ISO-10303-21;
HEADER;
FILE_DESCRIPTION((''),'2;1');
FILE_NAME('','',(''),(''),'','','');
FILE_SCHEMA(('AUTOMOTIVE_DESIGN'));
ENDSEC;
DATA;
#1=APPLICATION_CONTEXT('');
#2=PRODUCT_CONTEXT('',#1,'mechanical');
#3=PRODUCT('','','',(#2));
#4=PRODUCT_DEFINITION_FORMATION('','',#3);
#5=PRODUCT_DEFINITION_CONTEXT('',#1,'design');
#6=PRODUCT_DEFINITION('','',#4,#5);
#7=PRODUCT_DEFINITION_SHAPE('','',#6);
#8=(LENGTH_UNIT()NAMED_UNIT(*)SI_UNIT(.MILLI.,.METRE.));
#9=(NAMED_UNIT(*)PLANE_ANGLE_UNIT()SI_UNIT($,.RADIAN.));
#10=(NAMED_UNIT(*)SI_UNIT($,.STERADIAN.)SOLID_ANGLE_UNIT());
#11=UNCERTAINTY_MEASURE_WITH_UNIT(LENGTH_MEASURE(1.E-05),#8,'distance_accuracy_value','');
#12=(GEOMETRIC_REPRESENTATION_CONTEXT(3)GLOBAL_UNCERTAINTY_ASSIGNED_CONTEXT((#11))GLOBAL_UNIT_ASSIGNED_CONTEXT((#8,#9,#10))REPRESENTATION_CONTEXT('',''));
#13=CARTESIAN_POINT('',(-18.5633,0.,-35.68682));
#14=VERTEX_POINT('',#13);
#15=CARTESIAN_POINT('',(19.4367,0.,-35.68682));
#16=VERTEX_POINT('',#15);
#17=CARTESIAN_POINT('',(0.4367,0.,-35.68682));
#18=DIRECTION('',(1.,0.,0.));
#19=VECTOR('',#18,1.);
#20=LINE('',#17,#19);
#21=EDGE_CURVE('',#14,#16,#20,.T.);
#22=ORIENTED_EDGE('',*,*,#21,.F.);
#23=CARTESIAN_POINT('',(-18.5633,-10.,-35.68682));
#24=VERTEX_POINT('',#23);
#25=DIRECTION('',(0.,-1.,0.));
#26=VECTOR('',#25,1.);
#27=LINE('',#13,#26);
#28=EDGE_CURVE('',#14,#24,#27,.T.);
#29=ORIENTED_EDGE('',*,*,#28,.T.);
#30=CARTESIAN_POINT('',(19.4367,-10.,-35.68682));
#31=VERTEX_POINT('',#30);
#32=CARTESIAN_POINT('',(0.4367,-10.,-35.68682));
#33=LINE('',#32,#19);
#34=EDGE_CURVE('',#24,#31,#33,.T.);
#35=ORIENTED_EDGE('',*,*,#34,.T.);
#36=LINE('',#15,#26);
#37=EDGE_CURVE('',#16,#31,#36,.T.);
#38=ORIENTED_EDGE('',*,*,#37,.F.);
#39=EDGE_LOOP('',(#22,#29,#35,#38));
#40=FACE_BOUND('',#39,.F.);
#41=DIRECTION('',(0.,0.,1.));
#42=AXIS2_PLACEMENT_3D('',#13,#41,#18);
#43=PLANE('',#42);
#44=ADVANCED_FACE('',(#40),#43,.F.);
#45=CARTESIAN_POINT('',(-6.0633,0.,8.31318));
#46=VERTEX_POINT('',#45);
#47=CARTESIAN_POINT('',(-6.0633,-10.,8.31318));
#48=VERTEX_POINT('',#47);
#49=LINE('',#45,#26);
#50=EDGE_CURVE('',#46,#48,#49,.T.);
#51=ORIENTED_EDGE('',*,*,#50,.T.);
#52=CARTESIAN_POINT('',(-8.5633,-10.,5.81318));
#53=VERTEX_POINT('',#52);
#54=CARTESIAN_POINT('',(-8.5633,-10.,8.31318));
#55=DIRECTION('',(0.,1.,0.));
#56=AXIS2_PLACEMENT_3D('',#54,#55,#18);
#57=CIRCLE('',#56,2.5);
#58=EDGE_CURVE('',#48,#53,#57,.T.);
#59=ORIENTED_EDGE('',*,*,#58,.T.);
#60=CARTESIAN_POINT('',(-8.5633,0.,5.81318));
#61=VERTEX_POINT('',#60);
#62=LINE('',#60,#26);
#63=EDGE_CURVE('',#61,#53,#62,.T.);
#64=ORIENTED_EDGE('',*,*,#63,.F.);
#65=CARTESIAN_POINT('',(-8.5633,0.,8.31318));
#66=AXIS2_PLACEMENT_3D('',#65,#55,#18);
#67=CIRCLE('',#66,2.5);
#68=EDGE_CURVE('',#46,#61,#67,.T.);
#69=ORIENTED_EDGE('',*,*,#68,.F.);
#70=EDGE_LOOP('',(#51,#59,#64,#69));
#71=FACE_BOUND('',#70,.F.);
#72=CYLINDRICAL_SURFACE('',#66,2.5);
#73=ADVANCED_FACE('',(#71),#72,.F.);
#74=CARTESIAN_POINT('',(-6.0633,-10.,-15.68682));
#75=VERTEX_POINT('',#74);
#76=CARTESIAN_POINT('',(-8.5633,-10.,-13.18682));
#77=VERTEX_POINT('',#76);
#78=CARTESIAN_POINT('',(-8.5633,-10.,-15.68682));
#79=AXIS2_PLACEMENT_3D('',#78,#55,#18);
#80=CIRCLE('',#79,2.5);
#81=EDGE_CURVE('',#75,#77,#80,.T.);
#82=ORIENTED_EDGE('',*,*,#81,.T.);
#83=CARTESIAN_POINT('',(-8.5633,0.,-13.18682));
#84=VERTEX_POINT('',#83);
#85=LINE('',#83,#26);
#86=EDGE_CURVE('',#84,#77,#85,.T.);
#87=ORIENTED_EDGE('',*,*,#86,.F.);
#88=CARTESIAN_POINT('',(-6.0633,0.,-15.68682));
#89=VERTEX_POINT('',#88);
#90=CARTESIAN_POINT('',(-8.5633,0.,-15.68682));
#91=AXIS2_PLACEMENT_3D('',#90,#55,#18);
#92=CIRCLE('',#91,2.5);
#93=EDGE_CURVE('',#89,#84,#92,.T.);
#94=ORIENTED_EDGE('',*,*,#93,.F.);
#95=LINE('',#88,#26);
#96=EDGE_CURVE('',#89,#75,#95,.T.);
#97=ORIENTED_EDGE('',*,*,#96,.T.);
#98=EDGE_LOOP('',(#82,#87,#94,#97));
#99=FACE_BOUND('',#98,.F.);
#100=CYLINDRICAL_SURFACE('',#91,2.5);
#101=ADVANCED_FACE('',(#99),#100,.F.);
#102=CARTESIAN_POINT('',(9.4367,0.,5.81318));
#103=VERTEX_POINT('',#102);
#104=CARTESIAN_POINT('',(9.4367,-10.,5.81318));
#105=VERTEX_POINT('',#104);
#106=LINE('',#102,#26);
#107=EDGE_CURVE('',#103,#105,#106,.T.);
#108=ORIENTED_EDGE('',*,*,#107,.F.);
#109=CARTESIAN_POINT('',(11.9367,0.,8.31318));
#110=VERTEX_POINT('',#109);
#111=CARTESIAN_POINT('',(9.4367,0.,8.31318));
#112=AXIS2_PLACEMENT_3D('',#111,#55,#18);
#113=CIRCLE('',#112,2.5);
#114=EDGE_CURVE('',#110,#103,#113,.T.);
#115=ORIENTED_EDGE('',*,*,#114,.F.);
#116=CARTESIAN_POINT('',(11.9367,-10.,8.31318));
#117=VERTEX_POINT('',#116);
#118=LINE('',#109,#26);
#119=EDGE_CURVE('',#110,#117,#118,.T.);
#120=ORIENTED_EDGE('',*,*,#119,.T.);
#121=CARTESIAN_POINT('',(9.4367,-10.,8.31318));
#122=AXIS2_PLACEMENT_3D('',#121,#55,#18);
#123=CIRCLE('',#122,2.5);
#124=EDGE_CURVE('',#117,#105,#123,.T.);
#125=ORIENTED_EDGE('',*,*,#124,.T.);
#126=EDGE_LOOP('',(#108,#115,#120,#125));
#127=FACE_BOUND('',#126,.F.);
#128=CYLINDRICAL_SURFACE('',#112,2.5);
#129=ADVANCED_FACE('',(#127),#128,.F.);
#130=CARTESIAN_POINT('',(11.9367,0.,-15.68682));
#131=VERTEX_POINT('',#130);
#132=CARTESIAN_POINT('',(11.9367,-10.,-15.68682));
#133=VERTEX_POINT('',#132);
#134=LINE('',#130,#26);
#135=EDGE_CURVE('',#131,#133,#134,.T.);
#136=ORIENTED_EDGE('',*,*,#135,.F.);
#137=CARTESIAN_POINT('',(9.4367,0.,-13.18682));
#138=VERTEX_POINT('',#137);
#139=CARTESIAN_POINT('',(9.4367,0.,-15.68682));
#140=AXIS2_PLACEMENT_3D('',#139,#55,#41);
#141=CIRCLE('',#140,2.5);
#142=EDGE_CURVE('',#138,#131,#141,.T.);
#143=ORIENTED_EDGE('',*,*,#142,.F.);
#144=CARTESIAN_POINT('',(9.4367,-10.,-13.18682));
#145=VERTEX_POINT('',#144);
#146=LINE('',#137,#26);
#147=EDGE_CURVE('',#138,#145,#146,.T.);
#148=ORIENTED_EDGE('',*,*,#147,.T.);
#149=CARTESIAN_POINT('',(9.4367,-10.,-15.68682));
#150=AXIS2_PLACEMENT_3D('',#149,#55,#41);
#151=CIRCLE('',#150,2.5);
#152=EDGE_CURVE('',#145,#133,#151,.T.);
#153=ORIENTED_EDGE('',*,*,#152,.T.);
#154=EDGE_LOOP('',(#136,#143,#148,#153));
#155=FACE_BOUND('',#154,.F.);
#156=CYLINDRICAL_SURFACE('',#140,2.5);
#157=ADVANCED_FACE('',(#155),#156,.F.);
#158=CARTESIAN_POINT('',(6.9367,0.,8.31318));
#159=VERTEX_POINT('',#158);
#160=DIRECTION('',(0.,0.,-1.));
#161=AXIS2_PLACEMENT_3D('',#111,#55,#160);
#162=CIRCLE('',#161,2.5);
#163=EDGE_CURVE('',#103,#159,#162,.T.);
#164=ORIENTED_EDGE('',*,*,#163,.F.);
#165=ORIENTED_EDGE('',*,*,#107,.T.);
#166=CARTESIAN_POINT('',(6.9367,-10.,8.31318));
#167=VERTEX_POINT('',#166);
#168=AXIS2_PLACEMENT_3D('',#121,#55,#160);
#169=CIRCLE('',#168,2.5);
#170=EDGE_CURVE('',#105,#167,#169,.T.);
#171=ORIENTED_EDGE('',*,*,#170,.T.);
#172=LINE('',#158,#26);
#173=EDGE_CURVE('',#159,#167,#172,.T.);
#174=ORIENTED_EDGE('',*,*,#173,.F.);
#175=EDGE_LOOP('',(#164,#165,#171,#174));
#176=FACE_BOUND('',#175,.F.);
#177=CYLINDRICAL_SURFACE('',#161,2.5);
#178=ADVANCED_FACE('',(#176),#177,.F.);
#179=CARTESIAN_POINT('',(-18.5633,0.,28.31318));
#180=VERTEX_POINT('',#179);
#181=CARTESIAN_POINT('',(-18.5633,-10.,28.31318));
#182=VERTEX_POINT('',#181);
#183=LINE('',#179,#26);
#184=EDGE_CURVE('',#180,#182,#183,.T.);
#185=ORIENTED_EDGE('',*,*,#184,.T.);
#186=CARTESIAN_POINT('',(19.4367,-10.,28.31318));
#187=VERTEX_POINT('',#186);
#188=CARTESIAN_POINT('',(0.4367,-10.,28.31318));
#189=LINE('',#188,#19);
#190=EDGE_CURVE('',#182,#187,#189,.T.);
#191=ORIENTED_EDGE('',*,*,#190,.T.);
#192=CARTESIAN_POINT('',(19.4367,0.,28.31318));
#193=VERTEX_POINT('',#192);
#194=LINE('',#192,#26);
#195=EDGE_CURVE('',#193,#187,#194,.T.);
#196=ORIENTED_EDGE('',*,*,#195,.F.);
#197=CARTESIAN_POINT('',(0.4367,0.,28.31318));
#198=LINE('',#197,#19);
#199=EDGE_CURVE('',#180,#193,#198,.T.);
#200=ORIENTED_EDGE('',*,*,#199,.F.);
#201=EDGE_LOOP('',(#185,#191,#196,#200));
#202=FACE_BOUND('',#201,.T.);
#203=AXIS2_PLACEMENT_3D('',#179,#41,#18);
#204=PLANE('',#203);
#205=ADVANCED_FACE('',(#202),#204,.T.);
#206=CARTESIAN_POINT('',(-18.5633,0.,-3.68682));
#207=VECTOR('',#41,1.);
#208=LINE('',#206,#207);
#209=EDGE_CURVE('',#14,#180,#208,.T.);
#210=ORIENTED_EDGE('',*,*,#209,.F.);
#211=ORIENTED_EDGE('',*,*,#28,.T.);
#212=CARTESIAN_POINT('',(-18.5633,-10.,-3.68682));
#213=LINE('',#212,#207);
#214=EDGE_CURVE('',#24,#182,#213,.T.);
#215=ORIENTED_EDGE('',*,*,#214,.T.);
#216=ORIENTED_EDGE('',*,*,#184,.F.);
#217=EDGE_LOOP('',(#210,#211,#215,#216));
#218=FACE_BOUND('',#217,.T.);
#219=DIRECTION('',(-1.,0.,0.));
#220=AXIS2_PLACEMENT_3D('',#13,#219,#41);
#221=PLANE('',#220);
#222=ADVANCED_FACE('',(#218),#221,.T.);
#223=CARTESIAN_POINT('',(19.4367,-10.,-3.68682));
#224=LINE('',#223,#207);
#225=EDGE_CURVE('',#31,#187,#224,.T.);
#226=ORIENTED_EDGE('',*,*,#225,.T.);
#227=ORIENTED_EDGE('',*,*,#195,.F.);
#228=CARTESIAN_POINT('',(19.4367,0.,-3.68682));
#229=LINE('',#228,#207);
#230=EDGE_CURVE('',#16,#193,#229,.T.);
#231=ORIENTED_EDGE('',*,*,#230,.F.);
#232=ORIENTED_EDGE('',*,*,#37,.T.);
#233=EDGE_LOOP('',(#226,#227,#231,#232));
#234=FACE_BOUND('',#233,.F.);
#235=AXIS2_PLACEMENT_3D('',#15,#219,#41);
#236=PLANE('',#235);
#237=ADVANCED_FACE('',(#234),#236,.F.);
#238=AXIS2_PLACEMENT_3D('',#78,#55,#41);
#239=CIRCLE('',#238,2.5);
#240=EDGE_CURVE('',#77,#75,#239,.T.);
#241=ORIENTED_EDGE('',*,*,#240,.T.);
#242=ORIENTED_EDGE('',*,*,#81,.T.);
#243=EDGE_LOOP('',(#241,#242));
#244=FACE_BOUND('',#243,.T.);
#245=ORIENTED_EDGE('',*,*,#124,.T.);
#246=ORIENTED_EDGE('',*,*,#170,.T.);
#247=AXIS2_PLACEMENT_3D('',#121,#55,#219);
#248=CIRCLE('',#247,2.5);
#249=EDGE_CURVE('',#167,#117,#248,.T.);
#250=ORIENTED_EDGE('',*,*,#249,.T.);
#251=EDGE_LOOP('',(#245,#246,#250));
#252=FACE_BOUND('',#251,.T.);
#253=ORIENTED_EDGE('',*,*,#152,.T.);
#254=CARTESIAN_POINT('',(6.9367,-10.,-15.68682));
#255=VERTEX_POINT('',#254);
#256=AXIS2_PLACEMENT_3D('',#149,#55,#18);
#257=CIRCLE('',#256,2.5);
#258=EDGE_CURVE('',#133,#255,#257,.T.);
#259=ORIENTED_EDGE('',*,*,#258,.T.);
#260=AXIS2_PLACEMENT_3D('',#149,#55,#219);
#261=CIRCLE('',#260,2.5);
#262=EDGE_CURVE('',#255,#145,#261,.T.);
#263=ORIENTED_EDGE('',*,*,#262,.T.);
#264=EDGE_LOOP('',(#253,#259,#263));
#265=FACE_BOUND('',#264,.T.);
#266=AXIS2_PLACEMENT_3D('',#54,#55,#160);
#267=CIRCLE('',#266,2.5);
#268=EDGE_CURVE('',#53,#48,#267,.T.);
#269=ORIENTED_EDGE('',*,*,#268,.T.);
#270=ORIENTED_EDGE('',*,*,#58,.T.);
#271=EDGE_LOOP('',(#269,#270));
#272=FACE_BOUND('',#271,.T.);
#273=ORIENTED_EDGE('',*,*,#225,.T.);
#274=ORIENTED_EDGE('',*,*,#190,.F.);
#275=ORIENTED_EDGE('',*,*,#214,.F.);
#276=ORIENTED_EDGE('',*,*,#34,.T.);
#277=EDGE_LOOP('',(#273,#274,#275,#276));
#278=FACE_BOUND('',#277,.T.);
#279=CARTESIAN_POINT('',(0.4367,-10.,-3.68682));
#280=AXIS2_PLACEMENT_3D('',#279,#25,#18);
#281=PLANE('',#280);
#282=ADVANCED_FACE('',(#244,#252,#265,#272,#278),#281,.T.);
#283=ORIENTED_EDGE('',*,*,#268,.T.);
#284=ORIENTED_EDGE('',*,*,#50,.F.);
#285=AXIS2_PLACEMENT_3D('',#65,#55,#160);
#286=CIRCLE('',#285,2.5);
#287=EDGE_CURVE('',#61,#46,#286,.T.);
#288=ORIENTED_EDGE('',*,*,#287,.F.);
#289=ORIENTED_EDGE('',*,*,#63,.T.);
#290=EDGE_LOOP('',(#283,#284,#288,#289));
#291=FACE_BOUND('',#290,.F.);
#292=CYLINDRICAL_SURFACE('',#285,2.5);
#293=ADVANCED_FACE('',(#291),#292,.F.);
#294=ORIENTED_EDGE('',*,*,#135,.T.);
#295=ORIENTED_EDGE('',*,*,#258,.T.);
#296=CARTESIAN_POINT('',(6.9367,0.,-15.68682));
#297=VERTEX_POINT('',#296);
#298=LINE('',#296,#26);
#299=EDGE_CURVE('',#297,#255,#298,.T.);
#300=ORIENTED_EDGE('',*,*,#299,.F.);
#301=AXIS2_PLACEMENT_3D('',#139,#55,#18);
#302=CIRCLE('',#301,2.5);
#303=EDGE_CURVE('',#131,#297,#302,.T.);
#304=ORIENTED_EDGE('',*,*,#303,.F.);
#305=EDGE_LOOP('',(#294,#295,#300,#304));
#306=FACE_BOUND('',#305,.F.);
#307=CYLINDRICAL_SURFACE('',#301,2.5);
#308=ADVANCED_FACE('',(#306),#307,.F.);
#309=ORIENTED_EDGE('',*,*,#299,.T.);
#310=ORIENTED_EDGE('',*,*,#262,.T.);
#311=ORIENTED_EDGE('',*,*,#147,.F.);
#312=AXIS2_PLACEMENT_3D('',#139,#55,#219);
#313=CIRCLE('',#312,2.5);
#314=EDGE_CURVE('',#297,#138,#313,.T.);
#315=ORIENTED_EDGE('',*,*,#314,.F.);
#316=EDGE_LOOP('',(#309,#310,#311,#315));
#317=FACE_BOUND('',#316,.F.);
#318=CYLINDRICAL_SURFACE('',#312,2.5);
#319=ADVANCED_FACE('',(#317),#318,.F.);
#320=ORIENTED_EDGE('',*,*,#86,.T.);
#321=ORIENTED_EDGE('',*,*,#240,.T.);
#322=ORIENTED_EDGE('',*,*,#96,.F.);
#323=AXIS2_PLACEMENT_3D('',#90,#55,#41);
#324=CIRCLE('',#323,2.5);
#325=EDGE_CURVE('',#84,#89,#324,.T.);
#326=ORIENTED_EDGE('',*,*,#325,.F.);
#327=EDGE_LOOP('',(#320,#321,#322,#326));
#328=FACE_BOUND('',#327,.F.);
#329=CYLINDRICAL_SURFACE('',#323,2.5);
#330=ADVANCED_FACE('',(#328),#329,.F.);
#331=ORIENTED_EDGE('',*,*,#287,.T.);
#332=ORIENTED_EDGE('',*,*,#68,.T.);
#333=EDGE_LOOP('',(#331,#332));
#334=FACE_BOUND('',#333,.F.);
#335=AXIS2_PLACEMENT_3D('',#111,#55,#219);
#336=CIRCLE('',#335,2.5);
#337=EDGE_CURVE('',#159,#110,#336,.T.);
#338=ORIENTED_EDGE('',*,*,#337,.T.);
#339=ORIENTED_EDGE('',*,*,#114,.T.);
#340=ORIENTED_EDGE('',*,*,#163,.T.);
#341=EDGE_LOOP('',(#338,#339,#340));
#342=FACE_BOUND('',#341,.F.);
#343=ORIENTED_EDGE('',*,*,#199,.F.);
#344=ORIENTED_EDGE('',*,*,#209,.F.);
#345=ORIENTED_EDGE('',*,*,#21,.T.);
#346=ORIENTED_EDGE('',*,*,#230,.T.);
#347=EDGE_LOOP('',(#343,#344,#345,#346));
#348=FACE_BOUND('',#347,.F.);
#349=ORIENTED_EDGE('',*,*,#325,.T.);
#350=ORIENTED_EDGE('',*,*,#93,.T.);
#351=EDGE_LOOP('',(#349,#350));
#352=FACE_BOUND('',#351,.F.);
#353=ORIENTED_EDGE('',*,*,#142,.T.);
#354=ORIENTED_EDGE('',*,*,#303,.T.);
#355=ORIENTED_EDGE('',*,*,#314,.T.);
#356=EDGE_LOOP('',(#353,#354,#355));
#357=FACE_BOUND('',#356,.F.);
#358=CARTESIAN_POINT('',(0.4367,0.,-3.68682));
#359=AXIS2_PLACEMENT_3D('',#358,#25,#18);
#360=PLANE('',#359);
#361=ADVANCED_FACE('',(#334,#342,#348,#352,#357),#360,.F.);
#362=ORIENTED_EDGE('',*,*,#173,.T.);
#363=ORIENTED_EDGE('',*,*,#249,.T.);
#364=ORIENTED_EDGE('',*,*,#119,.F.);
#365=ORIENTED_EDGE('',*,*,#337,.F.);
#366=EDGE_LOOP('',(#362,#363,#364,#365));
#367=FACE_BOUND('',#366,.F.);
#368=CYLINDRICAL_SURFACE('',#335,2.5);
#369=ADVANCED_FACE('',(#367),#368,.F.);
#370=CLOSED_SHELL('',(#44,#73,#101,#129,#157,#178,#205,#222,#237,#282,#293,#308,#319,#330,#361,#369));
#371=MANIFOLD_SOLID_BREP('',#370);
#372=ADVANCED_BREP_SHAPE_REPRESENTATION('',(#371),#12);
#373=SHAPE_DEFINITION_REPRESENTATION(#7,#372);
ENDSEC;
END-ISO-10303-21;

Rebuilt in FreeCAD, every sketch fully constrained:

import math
import FreeCAD as App
import Part
import Sketcher

V = App.Vector


def add_polygon(sketch, points):
    """Adds a closed chain of lines whose ends are joined by coincident constraints."""
    first, n = sketch.GeometryCount, len(points)
    for a, b in zip(points, points[1:] + points[:1]):
        sketch.addGeometry(Part.LineSegment(App.Vector(*a, 0), App.Vector(*b, 0)), False)
    for i in range(n):
        sketch.addConstraint(Sketcher.Constraint("Coincident", first + i, 2, first + (i + 1) % n, 1))

doc = App.newDocument("Part")
body = doc.addObject("PartDesign::Body", "Body")

sketch1 = body.newObject("Sketcher::SketchObject", "Sketch")
sketch1.AttachmentSupport = (doc.getObject("XZ_Plane"), [""])
sketch1.MapMode = "FlatFace"
add_polygon(sketch1, [(-18.6, 28.3), (-18.6, -35.7), (19.4, -35.7), (19.4, 28.3)])
sketch1.addGeometry(Part.ArcOfCircle(Part.Circle(V(-8.6, -15.7, 0), V(0, 0, 1), 2.5), math.radians(90), math.radians(360)), False)
sketch1.addGeometry(Part.ArcOfCircle(Part.Circle(V(-8.6, -15.7, 0), V(0, 0, 1), 2.5), math.radians(0), math.radians(90)), False)
sketch1.addGeometry(Part.ArcOfCircle(Part.Circle(V(9.4, -15.7, 0), V(0, 0, 1), 2.5), math.radians(180), math.radians(360)), False)
sketch1.addGeometry(Part.ArcOfCircle(Part.Circle(V(9.4, -15.7, 0), V(0, 0, 1), 2.5), math.radians(90), math.radians(180)), False)
sketch1.addGeometry(Part.ArcOfCircle(Part.Circle(V(9.4, -15.7, 0), V(0, 0, 1), 2.5), math.radians(0), math.radians(90)), False)
sketch1.addGeometry(Part.ArcOfCircle(Part.Circle(V(9.4, 8.3, 0), V(0, 0, 1), 2.5), math.radians(-90), math.radians(0)), False)
sketch1.addGeometry(Part.ArcOfCircle(Part.Circle(V(9.4, 8.3, 0), V(0, 0, 1), 2.5), math.radians(180), math.radians(270)), False)
sketch1.addGeometry(Part.ArcOfCircle(Part.Circle(V(9.4, 8.3, 0), V(0, 0, 1), 2.5), math.radians(0), math.radians(180)), False)
sketch1.addGeometry(Part.ArcOfCircle(Part.Circle(V(-8.6, 8.3, 0), V(0, 0, 1), 2.5), math.radians(0), math.radians(270)), False)
sketch1.addGeometry(Part.ArcOfCircle(Part.Circle(V(-8.6, 8.3, 0), V(0, 0, 1), 2.5), math.radians(-90), math.radians(0)), False)
sketch1.addConstraint([
    Sketcher.Constraint("Tangent", 4, 1, 5, 2),
    Sketcher.Constraint("Coincident", 5, 1, 4, 2),
    Sketcher.Constraint("Tangent", 6, 1, 7, 2),
    Sketcher.Constraint("Tangent", 7, 1, 8, 2),
    Sketcher.Constraint("Tangent", 8, 1, 6, 2),
    Sketcher.Constraint("Tangent", 9, 1, 10, 2),
    Sketcher.Constraint("Tangent", 10, 1, 11, 2),
    Sketcher.Constraint("Tangent", 11, 1, 9, 2),
    Sketcher.Constraint("Tangent", 12, 1, 13, 2),
    Sketcher.Constraint("Coincident", 13, 1, 12, 2),
    Sketcher.Constraint("Vertical", 0),
    Sketcher.Constraint("Horizontal", 1),
    Sketcher.Constraint("Vertical", 2),
    Sketcher.Constraint("Horizontal", 3),
    Sketcher.Constraint("Equal", 5, 6),
    Sketcher.Constraint("Equal", 8, 9),
    Sketcher.Constraint("Equal", 11, 12),
    Sketcher.Constraint("Horizontal", 5, 3, 6, 3),
    Sketcher.Constraint("Horizontal", 11, 3, 12, 3),
    Sketcher.Constraint("Horizontal", 8, 3, 5, 1),
    Sketcher.Constraint("Horizontal", 5, 1, 6, 1),
    Sketcher.Constraint("Horizontal", 6, 1, 8, 1),
    Sketcher.Constraint("Horizontal", 13, 3, 10, 1),
    Sketcher.Constraint("Horizontal", 10, 1, 11, 1),
    Sketcher.Constraint("Horizontal", 11, 1, 12, 1),
    Sketcher.Constraint("Vertical", 8, 3, 9, 3),
    Sketcher.Constraint("Vertical", 5, 3, 12, 3),
    Sketcher.Constraint("Vertical", 13, 3, 4, 1),
    Sketcher.Constraint("Vertical", 11, 3, 7, 1),
    Sketcher.Constraint("Vertical", 7, 1, 9, 1),
    Sketcher.Constraint("Vertical", 4, 1, 13, 1),
    Sketcher.Constraint("Radius", 4, 2.5),
    Sketcher.Constraint("DistanceX", 1, 1, 1, 2, 38.0),
    Sketcher.Constraint("DistanceY", 0, 2, 0, 1, 64.0),
    Sketcher.Constraint("DistanceX", 4, 3, 6, 3, 18.0),
    Sketcher.Constraint("DistanceY", 6, 3, 9, 3, 24.0),
    Sketcher.Constraint("DistanceX", 0, 2, 4, 3, 10.0),
    Sketcher.Constraint("DistanceY", 0, 2, 4, 3, 20.0),
    Sketcher.Constraint("DistanceX", 4, 3, -1, 1, 8.5633),
    Sketcher.Constraint("DistanceY", 4, 3, -1, 1, 15.68682),
])
pad1 = body.newObject("PartDesign::Pad", "Pad")
pad1.Profile = sketch1
pad1.Length = 10

doc.recompute()
